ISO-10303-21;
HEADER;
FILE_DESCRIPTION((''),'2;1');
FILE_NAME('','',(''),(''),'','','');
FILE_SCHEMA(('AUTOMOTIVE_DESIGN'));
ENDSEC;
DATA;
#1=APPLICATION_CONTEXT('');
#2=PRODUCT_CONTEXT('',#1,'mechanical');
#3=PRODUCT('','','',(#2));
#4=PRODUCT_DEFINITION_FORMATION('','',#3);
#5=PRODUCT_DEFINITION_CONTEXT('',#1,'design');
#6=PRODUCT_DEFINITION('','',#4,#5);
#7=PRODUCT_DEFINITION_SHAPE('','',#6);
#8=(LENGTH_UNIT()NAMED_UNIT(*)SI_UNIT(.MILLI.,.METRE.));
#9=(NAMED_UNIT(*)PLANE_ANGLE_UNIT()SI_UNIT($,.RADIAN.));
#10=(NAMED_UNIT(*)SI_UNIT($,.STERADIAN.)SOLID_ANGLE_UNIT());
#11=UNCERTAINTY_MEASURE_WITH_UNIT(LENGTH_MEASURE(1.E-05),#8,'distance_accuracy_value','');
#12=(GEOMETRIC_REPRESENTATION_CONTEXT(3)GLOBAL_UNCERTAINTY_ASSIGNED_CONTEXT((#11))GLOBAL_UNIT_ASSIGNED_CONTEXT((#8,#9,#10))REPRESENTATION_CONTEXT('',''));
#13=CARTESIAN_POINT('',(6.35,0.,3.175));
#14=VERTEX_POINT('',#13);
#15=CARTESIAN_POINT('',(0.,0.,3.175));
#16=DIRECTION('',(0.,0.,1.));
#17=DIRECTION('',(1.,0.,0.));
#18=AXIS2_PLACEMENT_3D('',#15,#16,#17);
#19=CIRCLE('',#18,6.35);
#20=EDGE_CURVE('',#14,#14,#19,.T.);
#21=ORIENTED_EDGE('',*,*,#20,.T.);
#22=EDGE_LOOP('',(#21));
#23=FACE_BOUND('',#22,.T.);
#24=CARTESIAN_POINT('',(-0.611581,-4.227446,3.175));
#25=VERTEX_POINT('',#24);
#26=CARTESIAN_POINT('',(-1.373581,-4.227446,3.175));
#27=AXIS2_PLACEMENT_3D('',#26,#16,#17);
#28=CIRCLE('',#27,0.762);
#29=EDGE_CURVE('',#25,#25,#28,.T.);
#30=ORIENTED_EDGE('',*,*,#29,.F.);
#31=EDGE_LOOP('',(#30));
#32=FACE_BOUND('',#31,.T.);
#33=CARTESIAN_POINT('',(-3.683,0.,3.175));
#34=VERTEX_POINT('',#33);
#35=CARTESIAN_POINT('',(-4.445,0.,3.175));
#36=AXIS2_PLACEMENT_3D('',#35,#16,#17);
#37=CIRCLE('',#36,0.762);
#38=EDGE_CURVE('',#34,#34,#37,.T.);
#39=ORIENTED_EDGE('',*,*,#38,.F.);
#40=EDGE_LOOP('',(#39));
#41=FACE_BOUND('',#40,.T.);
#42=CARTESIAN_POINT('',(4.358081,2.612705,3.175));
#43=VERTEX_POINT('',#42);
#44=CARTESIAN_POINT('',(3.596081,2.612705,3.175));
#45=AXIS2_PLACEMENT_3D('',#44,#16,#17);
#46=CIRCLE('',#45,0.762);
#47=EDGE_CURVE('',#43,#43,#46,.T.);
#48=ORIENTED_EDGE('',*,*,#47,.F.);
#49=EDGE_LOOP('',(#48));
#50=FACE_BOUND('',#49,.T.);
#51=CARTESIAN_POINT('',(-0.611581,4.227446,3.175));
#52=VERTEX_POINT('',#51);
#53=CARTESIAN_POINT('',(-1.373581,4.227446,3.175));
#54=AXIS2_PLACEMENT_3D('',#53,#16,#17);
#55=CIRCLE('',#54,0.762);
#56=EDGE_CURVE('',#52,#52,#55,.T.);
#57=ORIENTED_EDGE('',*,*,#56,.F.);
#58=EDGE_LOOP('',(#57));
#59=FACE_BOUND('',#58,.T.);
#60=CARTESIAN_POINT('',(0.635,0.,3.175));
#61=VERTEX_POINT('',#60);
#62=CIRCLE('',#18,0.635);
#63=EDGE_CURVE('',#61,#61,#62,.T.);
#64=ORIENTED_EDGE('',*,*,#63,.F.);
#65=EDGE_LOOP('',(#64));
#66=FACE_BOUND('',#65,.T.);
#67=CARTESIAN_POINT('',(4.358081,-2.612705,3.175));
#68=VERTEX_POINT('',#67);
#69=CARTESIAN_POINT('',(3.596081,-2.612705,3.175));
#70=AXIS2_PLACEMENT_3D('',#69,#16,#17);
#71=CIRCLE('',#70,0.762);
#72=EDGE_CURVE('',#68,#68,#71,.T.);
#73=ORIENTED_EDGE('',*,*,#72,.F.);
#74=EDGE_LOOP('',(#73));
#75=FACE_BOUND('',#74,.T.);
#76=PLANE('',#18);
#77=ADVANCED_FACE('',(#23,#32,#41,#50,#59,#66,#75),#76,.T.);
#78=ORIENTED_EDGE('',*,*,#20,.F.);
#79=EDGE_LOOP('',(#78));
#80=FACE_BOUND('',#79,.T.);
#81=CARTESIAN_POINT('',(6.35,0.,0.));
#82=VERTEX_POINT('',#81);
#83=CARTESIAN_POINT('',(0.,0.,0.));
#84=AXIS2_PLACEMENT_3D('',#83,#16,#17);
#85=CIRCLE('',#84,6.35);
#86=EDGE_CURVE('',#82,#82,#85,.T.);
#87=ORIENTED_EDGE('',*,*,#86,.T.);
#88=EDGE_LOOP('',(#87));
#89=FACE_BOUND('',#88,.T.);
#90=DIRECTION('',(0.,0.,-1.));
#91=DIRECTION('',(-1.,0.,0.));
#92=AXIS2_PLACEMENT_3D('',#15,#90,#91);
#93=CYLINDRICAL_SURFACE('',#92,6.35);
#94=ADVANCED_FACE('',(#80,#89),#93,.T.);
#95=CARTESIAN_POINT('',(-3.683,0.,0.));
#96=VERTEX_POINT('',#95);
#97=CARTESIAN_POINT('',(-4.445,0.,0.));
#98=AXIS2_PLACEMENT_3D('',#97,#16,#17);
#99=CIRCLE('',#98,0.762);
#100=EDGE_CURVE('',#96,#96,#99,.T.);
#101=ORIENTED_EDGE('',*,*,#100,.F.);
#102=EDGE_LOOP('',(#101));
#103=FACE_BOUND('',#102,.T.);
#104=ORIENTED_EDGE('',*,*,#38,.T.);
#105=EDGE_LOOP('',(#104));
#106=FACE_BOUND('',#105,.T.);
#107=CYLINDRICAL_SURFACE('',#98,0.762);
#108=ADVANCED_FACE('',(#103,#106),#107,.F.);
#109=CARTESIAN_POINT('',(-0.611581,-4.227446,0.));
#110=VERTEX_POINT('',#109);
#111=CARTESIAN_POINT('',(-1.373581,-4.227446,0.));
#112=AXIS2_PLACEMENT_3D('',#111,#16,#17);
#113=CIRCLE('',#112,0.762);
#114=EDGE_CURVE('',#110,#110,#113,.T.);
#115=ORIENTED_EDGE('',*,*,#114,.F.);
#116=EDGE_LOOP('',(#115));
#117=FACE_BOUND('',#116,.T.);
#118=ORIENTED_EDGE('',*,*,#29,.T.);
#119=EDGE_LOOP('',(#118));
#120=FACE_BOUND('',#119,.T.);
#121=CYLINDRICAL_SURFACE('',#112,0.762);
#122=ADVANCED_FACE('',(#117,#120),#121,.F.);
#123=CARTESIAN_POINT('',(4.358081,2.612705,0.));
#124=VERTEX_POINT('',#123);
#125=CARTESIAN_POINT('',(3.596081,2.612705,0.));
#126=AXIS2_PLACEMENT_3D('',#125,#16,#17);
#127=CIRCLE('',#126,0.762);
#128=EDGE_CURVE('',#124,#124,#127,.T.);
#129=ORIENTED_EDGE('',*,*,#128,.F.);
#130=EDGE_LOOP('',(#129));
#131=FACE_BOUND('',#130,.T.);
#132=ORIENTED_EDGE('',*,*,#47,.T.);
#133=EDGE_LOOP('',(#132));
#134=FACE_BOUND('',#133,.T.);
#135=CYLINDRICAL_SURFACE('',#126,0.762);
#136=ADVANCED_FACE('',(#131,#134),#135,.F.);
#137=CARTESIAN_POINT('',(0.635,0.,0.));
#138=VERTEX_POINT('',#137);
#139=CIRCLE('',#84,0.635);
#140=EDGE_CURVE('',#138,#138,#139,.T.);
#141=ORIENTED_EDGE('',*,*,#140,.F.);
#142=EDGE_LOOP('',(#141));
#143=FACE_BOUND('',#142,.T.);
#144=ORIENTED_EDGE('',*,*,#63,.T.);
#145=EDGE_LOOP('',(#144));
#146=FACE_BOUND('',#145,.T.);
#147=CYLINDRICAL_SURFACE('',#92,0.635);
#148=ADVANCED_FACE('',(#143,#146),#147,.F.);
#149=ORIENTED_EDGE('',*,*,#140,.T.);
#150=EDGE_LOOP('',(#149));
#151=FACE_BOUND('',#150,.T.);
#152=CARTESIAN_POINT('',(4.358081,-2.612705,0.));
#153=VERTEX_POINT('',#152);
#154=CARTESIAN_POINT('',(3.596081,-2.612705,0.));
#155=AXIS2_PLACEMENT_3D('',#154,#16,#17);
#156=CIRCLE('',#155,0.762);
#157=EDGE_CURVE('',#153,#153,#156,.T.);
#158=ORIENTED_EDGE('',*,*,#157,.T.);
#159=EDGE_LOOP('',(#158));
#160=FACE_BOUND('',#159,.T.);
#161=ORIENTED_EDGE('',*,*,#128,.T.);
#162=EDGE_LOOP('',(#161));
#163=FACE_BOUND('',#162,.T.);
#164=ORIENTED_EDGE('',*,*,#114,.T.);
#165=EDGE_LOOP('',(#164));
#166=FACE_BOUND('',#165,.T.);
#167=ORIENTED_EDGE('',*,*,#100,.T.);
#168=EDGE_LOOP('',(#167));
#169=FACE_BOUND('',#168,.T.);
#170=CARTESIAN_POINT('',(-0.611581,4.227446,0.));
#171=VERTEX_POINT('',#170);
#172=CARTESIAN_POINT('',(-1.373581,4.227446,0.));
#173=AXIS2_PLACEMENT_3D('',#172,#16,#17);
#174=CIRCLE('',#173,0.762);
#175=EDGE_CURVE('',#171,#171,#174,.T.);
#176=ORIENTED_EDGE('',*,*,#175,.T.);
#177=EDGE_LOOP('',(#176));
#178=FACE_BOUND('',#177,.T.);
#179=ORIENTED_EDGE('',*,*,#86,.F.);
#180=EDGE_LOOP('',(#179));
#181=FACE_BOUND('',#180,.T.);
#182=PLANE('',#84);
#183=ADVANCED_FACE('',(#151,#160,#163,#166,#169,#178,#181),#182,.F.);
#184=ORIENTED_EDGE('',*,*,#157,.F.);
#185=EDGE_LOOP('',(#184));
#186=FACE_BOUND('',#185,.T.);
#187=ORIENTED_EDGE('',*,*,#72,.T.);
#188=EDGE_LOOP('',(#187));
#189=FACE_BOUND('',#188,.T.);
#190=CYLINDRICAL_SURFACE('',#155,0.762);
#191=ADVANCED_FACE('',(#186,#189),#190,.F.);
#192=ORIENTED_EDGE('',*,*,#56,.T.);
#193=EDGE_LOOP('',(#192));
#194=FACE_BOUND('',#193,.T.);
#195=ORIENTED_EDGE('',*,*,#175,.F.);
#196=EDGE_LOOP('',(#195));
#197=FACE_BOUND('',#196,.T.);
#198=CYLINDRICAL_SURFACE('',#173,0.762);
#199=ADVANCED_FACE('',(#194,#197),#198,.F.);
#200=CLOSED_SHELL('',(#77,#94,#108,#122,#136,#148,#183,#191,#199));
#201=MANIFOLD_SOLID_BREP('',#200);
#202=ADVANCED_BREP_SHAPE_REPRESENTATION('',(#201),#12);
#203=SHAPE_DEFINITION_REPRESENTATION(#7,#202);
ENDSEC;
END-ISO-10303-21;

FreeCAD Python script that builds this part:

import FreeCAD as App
import Part
import Sketcher

V = App.Vector
Q = App.Units.Quantity

doc = App.newDocument("Part")
body = doc.addObject("PartDesign::Body", "Body")

sketch1 = body.newObject("Sketcher::SketchObject", "Sketch")
sketch1.AttachmentSupport = (doc.getObject("XY_Plane"), [""])
sketch1.MapMode = "FlatFace"
sketch1.addGeometry(Part.Circle(V(0, 0, 0), V(0, 0, 1), 6.35), False)
sketch1.addGeometry(Part.Circle(V(0, 0, 0), V(0, 0, 1), 0.635), False)
sketch1.addConstraint(Sketcher.Constraint("Coincident", 0, 3, -1, 1))
sketch1.addConstraint(Sketcher.Constraint("Coincident", 1, 3, -1, 1))
sketch1.addConstraint(Sketcher.Constraint("Diameter", 0, Q("0.5 in")))
sketch1.addConstraint(Sketcher.Constraint("Diameter", 1, Q("0.05 in")))
pad1 = body.newObject("PartDesign::Pad", "Pad")
pad1.Profile = sketch1
pad1.Length = Q("0.125 in")

sketch2 = body.newObject("Sketcher::SketchObject", "Sketch001")
sketch2.AttachmentSupport = (doc.getObject("XY_Plane"), [""])
sketch2.MapMode = "FlatFace"
sketch2.AttachmentOffset = App.Placement(V(0, 0, 0.125 * 25.4), App.Rotation())
sketch2.addGeometry(Part.Circle(V(-4.445, 0, 0), V(0, 0, 1), 0.762), False)
sketch2.addGeometry(Part.Circle(V(-1.373581, 4.227446, 0), V(0, 0, 1), 0.762), False)
sketch2.addGeometry(Part.Circle(V(3.596081, 2.612705, 0), V(0, 0, 1), 0.762), False)
sketch2.addGeometry(Part.Circle(V(3.596081, -2.612705, 0), V(0, 0, 1), 0.762), False)
sketch2.addGeometry(Part.Circle(V(-1.373581, -4.227446, 0), V(0, 0, 1), 0.762), False)
sketch2.addConstraint(Sketcher.Constraint("Equal", 0, 1))
sketch2.addConstraint(Sketcher.Constraint("Equal", 1, 2))
sketch2.addConstraint(Sketcher.Constraint("Equal", 2, 3))
sketch2.addConstraint(Sketcher.Constraint("Equal", 3, 4))
sketch2.addConstraint(Sketcher.Constraint("Symmetric", 2, 3, 3, 3, -1))
sketch2.addConstraint(Sketcher.Constraint("Symmetric", 1, 3, 4, 3, -1))
sketch2.addConstraint(Sketcher.Constraint("PointOnObject", 0, 3, -1))
sketch2.addConstraint(Sketcher.Constraint("Diameter", 0, Q("0.06 in")))
sketch2.addConstraint(Sketcher.Constraint("DistanceX", 0, 3, -1, 1, Q("0.175 in")))
sketch2.addConstraint(Sketcher.Constraint("DistanceX", 1, 3, -1, 1, Q("1.373581 mm")))
sketch2.addConstraint(Sketcher.Constraint("DistanceX", -1, 1, 2, 3, Q("3.596081 mm")))
sketch2.addConstraint(Sketcher.Constraint("DistanceY", 2, 3, 1, 3, Q("1.614741 mm")))
sketch2.addConstraint(Sketcher.Constraint("DistanceY", 3, 3, 2, 3, Q("5.225411 mm")))
pocket1 = body.newObject("PartDesign::Pocket", "Pocket")
pocket1.Profile = sketch2
pocket1.Type = "ThroughAll"

doc.recompute()
